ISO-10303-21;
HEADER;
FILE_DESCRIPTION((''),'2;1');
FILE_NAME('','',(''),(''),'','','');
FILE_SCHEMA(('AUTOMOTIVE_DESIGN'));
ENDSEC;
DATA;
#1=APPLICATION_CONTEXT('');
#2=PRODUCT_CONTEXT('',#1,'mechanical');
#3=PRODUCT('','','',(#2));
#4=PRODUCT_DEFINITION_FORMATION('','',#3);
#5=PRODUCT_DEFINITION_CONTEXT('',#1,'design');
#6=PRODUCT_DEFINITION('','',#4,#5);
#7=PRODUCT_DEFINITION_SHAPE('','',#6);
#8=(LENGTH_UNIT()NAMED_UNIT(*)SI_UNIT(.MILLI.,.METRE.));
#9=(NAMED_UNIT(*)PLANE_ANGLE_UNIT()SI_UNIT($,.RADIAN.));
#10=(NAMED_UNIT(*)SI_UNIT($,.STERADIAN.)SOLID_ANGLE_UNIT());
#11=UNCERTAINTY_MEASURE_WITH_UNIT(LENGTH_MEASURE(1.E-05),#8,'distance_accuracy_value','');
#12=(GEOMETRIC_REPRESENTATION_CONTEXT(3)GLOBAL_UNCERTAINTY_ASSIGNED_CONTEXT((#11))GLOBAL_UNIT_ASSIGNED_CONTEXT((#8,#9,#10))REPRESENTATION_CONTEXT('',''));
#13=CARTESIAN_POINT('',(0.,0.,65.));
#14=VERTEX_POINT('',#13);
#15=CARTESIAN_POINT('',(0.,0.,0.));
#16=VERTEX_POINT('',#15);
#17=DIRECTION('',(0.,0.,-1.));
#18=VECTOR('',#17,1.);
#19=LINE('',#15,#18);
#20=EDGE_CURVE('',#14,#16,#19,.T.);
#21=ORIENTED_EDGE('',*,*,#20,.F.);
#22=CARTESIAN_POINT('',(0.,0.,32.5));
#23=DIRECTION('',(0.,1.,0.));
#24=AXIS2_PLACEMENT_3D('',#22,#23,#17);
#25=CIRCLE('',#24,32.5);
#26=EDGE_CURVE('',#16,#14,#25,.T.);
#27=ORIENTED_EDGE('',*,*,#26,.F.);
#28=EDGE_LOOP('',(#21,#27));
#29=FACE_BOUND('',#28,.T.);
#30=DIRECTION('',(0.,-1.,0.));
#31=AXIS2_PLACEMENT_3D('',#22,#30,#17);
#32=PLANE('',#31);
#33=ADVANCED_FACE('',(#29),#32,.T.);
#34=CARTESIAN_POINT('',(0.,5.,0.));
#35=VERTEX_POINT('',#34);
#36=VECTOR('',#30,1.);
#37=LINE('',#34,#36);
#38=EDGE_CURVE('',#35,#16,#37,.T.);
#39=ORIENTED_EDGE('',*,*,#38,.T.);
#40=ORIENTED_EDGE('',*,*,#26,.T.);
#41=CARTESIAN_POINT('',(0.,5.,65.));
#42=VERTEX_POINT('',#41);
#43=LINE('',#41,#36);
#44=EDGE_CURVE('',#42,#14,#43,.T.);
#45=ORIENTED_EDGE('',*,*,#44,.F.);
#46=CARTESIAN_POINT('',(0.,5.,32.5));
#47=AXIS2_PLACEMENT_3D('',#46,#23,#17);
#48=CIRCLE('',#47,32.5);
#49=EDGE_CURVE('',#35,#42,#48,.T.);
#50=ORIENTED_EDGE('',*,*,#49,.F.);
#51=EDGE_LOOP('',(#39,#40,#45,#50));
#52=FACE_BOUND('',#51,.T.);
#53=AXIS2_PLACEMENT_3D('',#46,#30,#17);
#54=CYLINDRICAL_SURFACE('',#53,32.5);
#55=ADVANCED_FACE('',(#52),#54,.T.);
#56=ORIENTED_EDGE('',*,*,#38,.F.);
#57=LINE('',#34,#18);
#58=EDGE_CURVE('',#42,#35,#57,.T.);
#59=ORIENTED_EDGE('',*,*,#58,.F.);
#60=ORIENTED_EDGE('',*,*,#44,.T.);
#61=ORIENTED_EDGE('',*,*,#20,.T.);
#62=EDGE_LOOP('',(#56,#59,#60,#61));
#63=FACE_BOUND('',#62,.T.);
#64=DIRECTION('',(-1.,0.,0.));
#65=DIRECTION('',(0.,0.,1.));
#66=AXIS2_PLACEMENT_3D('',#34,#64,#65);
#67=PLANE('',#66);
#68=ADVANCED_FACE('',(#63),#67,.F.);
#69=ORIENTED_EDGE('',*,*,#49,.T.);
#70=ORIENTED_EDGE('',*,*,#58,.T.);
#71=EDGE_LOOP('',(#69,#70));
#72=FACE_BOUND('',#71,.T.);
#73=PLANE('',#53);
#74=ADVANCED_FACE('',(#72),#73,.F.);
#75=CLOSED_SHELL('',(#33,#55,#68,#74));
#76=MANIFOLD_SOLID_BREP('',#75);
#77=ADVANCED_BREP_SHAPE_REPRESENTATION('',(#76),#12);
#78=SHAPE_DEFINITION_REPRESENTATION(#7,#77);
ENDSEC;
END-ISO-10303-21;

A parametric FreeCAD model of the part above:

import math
import FreeCAD as App
import Part
import Sketcher

doc = App.newDocument("Part")
params = doc.addObject("Spreadsheet::Sheet", "Params")
for row, (alias, value) in enumerate([
    ("sketch1_radius", "32.5 mm"),
    ("pad1_length", "5 mm"),
], start=1):
    params.set(f"A{row}", alias)
    params.set(f"B{row}", "=" + value)
    params.setAlias(f"B{row}", alias)

body = doc.addObject("PartDesign::Body", "Body")

# Sketch on XZ plane
sketch1 = doc.addObject("Sketcher::SketchObject", "Sketch")
body.addObject(sketch1)
sketch1.AttachmentSupport = (doc.XZ_Plane, [""])
sketch1.MapMode = "FlatFace"
sketch1.addGeometry(Part.LineSegment(App.Vector(0, 65, 0), App.Vector(0, 0, 0)), False)
sketch1.addGeometry(Part.ArcOfCircle(Part.Circle(App.Vector(0, 32, 0), App.Vector(0, 0, 1), 32), math.radians(90), math.radians(270)), False)
sketch1.addConstraint(Sketcher.Constraint("Coincident", 0, 1, 1, 1))
sketch1.addConstraint(Sketcher.Constraint("Coincident", 1, 2, 0, 2))
sketch1.addConstraint(Sketcher.Constraint("Vertical", 0))
sketch1.addConstraint(Sketcher.Constraint("Coincident", 1, 2, -1, 1))
sketch1.addConstraint(Sketcher.Constraint("PointOnObject", 1, 3, -2))
sketch1.addConstraint(Sketcher.Constraint("Radius", 1, 32.5))
sketch1.setExpression("Constraints[5]", "Params.sketch1_radius")
pad1 = doc.addObject("PartDesign::Pad", "Pad")
body.addObject(pad1)
pad1.Profile = sketch1
pad1.setExpression("Length", "Params.pad1_length")
pad1.Reversed = True

doc.recompute()
